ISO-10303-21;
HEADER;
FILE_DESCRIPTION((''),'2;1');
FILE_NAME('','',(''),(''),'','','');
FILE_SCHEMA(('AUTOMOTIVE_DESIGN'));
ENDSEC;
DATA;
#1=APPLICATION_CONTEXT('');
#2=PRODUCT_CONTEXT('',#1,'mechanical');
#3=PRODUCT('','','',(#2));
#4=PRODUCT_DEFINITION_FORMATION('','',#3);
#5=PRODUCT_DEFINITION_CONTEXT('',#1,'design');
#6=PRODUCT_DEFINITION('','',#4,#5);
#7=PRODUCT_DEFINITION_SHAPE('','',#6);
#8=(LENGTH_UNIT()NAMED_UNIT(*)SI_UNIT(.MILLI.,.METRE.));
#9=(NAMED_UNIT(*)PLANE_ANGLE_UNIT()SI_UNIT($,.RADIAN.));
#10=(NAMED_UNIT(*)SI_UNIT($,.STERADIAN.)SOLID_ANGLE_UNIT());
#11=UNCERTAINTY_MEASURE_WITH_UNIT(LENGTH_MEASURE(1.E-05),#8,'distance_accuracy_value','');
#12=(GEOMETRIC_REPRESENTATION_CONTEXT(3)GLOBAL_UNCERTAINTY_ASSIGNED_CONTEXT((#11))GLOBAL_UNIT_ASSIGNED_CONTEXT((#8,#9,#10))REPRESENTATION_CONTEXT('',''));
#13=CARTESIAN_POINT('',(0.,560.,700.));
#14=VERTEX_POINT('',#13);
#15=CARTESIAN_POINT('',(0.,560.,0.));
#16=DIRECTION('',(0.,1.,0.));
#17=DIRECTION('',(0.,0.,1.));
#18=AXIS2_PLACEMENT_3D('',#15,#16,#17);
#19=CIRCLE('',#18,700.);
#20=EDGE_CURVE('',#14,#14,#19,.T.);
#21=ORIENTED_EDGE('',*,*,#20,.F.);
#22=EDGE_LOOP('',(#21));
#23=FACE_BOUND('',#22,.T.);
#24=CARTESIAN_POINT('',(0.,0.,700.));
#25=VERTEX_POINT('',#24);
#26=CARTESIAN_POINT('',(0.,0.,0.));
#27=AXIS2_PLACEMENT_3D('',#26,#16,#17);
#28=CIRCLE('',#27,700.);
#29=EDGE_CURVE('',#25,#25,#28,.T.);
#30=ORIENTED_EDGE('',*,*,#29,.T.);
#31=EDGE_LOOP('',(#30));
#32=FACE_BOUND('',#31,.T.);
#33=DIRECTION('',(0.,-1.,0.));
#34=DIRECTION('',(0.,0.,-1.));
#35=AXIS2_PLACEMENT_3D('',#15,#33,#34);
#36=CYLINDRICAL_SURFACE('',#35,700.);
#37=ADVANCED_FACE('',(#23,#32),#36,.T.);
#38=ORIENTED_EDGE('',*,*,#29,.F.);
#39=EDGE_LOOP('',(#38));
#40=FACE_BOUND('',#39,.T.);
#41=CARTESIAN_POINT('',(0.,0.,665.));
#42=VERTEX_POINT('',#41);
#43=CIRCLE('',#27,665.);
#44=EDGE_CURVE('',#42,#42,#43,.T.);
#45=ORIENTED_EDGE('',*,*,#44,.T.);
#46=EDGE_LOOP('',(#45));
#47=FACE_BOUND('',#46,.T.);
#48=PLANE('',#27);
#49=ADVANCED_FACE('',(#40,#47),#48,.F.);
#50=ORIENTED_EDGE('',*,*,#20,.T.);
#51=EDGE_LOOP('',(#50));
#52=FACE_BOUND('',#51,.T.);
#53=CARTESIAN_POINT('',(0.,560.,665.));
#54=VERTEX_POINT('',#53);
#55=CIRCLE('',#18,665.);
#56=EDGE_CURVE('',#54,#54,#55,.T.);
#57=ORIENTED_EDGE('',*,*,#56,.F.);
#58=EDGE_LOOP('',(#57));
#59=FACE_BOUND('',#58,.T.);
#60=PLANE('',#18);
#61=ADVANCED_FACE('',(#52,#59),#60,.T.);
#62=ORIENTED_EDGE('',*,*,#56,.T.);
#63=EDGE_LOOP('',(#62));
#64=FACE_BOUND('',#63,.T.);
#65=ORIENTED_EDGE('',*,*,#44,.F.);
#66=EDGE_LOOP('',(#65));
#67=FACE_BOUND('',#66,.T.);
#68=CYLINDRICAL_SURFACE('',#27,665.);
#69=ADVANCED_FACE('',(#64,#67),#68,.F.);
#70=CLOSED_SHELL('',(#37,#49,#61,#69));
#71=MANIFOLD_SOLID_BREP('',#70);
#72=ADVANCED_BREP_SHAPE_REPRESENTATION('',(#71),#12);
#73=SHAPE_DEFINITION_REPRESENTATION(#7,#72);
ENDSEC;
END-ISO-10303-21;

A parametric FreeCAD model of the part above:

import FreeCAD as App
import Part
import Sketcher
from FreeCAD import Vector

doc = App.newDocument("Part")
body = doc.addObject("PartDesign::Body", "Body")

# Sketch on XZ plane
sketch1 = body.newObject("Sketcher::SketchObject", "Sketch")
sketch1.AttachmentSupport = (doc.getObject("XZ_Plane"), [""])
sketch1.MapMode = "FlatFace"
sketch1.addGeometry(Part.Circle(Vector(0, 0, 0), Vector(0, 0, 1), 700), False)
sketch1.addConstraint(Sketcher.Constraint("Coincident", 0, 3, -1, 1))
sketch1.addConstraint(Sketcher.Constraint("Diameter", 0, 1400.0))
pad1 = body.newObject("PartDesign::Pad", "Pad")
pad1.Profile = sketch1
pad1.Length = 560
pad1.Reversed = True

# Sketch on XZ plane
sketch2 = body.newObject("Sketcher::SketchObject", "Sketch001")
sketch2.AttachmentSupport = (doc.getObject("XZ_Plane"), [""])
sketch2.MapMode = "FlatFace"
sketch2.AttachmentOffset = App.Placement(Vector(0, 0, -560), App.Rotation())
sketch2.addGeometry(Part.Circle(Vector(0, 0, 0), Vector(0, 0, 1), 665), False)
sketch2.addConstraint(Sketcher.Constraint("Coincident", 0, 3, -1, 1))
sketch2.addConstraint(Sketcher.Constraint("Diameter", 0, 1330.0))
pocket1 = body.newObject("PartDesign::Pocket", "Pocket")
pocket1.Profile = sketch2
pocket1.Length = 560
pocket1.Reversed = True

doc.recompute()
